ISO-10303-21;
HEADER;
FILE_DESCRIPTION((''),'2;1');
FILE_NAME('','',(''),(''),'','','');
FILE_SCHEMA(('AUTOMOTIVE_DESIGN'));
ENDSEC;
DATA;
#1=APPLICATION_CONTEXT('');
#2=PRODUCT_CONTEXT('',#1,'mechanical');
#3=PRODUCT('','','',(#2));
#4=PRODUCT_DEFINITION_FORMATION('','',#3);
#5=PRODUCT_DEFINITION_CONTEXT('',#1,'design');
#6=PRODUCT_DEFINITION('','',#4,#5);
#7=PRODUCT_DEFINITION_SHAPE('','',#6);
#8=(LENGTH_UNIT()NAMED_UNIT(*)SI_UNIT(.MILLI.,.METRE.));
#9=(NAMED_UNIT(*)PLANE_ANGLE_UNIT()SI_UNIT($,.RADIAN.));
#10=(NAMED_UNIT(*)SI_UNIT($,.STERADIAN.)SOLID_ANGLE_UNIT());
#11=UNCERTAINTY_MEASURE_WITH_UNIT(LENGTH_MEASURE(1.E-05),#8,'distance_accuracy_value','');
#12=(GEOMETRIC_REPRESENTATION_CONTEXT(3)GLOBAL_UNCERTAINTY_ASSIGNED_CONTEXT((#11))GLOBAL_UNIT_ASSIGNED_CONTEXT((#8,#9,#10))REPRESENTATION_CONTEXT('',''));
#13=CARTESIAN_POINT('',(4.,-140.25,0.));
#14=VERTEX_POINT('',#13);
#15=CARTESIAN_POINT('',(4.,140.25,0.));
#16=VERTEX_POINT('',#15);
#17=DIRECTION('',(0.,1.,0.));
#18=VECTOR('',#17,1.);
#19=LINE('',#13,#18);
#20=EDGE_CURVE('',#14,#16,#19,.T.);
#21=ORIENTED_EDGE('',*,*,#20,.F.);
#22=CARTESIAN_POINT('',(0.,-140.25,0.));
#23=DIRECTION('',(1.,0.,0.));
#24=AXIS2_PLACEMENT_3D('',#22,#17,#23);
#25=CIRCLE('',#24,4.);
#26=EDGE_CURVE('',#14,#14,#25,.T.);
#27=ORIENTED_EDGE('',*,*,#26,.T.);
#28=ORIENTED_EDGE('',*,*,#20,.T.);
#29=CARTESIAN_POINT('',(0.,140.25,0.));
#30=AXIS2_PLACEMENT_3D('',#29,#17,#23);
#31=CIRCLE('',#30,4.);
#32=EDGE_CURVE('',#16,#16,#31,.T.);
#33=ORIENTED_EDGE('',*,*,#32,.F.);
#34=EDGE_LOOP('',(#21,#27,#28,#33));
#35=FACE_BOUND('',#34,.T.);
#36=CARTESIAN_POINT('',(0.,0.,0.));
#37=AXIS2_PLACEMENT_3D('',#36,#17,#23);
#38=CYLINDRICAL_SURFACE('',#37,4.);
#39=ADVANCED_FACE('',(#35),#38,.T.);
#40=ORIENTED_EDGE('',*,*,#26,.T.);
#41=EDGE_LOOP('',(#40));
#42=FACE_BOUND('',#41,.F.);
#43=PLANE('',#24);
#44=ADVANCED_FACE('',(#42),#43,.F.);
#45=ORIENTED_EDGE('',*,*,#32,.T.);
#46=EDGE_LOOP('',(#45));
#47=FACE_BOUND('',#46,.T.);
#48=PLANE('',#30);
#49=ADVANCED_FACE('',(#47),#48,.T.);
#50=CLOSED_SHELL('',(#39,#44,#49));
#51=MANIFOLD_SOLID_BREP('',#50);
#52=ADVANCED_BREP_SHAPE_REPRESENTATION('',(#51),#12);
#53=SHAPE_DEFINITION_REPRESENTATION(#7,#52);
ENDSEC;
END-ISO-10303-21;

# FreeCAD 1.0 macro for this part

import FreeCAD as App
import Part
import Sketcher

V = App.Vector

doc = App.newDocument("Part")
body = doc.addObject("PartDesign::Body", "Body")

sketch1 = body.newObject("Sketcher::SketchObject", "Sketch")
sketch1.AttachmentSupport = (doc.getObject("XZ_Plane"), [""])
sketch1.MapMode = "FlatFace"
sketch1.addGeometry(Part.Circle(V(0, 0, 0), V(0, 0, 1), 4), False)
sketch1.addConstraint([
    Sketcher.Constraint("Coincident", 0, 3, -1, 1),
    Sketcher.Constraint("Diameter", 0, 8.0),
])
pad1 = body.newObject("PartDesign::Pad", "Pad")
pad1.Profile = sketch1
pad1.Length = 280.5
pad1.Midplane = True

doc.recompute()
